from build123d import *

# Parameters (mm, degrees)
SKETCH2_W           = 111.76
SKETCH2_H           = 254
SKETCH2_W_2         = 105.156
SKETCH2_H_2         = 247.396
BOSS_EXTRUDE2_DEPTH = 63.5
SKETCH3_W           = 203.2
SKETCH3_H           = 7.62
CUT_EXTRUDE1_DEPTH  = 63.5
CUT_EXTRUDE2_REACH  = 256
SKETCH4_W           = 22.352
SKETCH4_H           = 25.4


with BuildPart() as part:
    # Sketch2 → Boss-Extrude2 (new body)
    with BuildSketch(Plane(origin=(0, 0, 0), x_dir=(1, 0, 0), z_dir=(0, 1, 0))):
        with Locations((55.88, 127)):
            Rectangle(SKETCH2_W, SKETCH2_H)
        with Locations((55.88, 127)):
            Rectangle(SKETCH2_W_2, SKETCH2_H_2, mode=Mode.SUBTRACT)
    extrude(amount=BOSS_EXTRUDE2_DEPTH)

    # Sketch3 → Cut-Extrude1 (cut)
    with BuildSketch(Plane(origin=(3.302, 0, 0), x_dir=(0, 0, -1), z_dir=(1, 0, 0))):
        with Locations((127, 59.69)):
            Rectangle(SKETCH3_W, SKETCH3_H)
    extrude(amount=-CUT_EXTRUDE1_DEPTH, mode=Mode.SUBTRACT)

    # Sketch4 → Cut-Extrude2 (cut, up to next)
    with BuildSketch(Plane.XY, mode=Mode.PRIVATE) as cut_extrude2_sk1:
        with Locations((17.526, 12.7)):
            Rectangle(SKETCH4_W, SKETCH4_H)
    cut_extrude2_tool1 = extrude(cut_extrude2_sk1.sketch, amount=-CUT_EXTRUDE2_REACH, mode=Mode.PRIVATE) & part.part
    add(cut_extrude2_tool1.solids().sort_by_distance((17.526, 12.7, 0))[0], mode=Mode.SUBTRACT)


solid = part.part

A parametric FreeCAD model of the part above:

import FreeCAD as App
import Part
import Sketcher

V = App.Vector
Q = App.Units.Quantity


def add_polygon(sketch, points):
    """Adds a closed chain of lines whose ends are joined by coincident constraints."""
    first, n = sketch.GeometryCount, len(points)
    for a, b in zip(points, points[1:] + points[:1]):
        sketch.addGeometry(Part.LineSegment(App.Vector(*a, 0), App.Vector(*b, 0)), False)
    for i in range(n):
        sketch.addConstraint(Sketcher.Constraint("Coincident", first + i, 2, first + (i + 1) % n, 1))

doc = App.newDocument("Part")
body = doc.addObject("PartDesign::Body", "Body")

# Sketch on XZ plane
sketch1 = doc.addObject("Sketcher::SketchObject", "Sketch")
body.addObject(sketch1)
sketch1.AttachmentSupport = (doc.XZ_Plane, [""])
sketch1.MapMode = "FlatFace"
add_polygon(sketch1, [(0, -254), (0, 0), (112, 0), (112, -254)])  # lines 0-3
add_polygon(sketch1, [(108, -3), (3, -3), (3, -251), (108, -251)])  # lines 4-7
sketch1.addConstraint(Sketcher.Constraint("Vertical", 0))
sketch1.addConstraint(Sketcher.Constraint("Horizontal", 1))
sketch1.addConstraint(Sketcher.Constraint("Vertical", 2))
sketch1.addConstraint(Sketcher.Constraint("Horizontal", 3))
sketch1.addConstraint(Sketcher.Constraint("Horizontal", 4))
sketch1.addConstraint(Sketcher.Constraint("Vertical", 5))
sketch1.addConstraint(Sketcher.Constraint("Horizontal", 6))
sketch1.addConstraint(Sketcher.Constraint("Vertical", 7))
sketch1.addConstraint(Sketcher.Constraint("Coincident", 0, 2, -1, 1))
sketch1.addConstraint(Sketcher.Constraint("DistanceY", 0, 1, 0, 2, Q("10 in")))
sketch1.addConstraint(Sketcher.Constraint("DistanceX", 1, 1, 1, 2, Q("4.4 in")))
sketch1.addConstraint(Sketcher.Constraint("DistanceX", 4, 2, 4, 1, Q("4.14 in")))
sketch1.addConstraint(Sketcher.Constraint("DistanceY", 5, 2, 5, 1, Q("9.74 in")))
sketch1.addConstraint(Sketcher.Constraint("DistanceX", -1, 1, 4, 2, Q("0.13 in")))
sketch1.addConstraint(Sketcher.Constraint("DistanceY", 4, 2, -1, 1, Q("0.13 in")))
pad1 = doc.addObject("PartDesign::Pad", "Pad")
body.addObject(pad1)
pad1.Profile = sketch1
pad1.Length = Q("2.5 in")
pad1.Reversed = True

# Sketch on YZ plane
sketch2 = doc.addObject("Sketcher::SketchObject", "Sketch001")
body.addObject(sketch2)
sketch2.AttachmentSupport = (doc.YZ_Plane, [""])
sketch2.MapMode = "FlatFace"
sketch2.AttachmentOffset = App.Placement(V(0, 0, 0.13 * 25.4), App.Rotation())
add_polygon(sketch2, [(64, -25), (56, -25), (56, -229), (64, -229)])  # lines 0-3
sketch2.addConstraint(Sketcher.Constraint("Horizontal", 0))
sketch2.addConstraint(Sketcher.Constraint("Vertical", 1))
sketch2.addConstraint(Sketcher.Constraint("Horizontal", 2))
sketch2.addConstraint(Sketcher.Constraint("Vertical", 3))
sketch2.addConstraint(Sketcher.Constraint("DistanceY", 1, 2, 1, 1, Q("8 in")))
sketch2.addConstraint(Sketcher.Constraint("DistanceX", 0, 2, 0, 1, Q("0.3 in")))
sketch2.addConstraint(Sketcher.Constraint("DistanceY", 0, 2, -1, 1, Q("1 in")))
sketch2.addConstraint(Sketcher.Constraint("DistanceX", -1, 1, 0, 2, Q("2.2 in")))
pocket1 = doc.addObject("PartDesign::Pocket", "Pocket")
body.addObject(pocket1)
pocket1.Profile = sketch2
pocket1.Length = Q("2.5 in")

# Sketch on XY plane
sketch3 = doc.addObject("Sketcher::SketchObject", "Sketch002")
body.addObject(sketch3)
sketch3.AttachmentSupport = (doc.XY_Plane, [""])
sketch3.MapMode = "FlatFace"
add_polygon(sketch3, [(6, 25), (6, 0), (29, 0), (29, 25)])  # lines 0-3
sketch3.addConstraint(Sketcher.Constraint("Vertical", 0))
sketch3.addConstraint(Sketcher.Constraint("Horizontal", 1))
sketch3.addConstraint(Sketcher.Constraint("Vertical", 2))
sketch3.addConstraint(Sketcher.Constraint("Horizontal", 3))
sketch3.addConstraint(Sketcher.Constraint("PointOnObject", 0, 2, -1))
sketch3.addConstraint(Sketcher.Constraint("DistanceY", 0, 2, 0, 1, Q("1 in")))
sketch3.addConstraint(Sketcher.Constraint("DistanceX", 1, 1, 1, 2, Q("0.88 in")))
sketch3.addConstraint(Sketcher.Constraint("DistanceX", -1, 1, 0, 2, Q("0.25 in")))
pocket2 = doc.addObject("PartDesign::Pocket", "Pocket001")
body.addObject(pocket2)
pocket2.Profile = sketch3
pocket2.Type = "UpToFirst"

doc.recompute()
